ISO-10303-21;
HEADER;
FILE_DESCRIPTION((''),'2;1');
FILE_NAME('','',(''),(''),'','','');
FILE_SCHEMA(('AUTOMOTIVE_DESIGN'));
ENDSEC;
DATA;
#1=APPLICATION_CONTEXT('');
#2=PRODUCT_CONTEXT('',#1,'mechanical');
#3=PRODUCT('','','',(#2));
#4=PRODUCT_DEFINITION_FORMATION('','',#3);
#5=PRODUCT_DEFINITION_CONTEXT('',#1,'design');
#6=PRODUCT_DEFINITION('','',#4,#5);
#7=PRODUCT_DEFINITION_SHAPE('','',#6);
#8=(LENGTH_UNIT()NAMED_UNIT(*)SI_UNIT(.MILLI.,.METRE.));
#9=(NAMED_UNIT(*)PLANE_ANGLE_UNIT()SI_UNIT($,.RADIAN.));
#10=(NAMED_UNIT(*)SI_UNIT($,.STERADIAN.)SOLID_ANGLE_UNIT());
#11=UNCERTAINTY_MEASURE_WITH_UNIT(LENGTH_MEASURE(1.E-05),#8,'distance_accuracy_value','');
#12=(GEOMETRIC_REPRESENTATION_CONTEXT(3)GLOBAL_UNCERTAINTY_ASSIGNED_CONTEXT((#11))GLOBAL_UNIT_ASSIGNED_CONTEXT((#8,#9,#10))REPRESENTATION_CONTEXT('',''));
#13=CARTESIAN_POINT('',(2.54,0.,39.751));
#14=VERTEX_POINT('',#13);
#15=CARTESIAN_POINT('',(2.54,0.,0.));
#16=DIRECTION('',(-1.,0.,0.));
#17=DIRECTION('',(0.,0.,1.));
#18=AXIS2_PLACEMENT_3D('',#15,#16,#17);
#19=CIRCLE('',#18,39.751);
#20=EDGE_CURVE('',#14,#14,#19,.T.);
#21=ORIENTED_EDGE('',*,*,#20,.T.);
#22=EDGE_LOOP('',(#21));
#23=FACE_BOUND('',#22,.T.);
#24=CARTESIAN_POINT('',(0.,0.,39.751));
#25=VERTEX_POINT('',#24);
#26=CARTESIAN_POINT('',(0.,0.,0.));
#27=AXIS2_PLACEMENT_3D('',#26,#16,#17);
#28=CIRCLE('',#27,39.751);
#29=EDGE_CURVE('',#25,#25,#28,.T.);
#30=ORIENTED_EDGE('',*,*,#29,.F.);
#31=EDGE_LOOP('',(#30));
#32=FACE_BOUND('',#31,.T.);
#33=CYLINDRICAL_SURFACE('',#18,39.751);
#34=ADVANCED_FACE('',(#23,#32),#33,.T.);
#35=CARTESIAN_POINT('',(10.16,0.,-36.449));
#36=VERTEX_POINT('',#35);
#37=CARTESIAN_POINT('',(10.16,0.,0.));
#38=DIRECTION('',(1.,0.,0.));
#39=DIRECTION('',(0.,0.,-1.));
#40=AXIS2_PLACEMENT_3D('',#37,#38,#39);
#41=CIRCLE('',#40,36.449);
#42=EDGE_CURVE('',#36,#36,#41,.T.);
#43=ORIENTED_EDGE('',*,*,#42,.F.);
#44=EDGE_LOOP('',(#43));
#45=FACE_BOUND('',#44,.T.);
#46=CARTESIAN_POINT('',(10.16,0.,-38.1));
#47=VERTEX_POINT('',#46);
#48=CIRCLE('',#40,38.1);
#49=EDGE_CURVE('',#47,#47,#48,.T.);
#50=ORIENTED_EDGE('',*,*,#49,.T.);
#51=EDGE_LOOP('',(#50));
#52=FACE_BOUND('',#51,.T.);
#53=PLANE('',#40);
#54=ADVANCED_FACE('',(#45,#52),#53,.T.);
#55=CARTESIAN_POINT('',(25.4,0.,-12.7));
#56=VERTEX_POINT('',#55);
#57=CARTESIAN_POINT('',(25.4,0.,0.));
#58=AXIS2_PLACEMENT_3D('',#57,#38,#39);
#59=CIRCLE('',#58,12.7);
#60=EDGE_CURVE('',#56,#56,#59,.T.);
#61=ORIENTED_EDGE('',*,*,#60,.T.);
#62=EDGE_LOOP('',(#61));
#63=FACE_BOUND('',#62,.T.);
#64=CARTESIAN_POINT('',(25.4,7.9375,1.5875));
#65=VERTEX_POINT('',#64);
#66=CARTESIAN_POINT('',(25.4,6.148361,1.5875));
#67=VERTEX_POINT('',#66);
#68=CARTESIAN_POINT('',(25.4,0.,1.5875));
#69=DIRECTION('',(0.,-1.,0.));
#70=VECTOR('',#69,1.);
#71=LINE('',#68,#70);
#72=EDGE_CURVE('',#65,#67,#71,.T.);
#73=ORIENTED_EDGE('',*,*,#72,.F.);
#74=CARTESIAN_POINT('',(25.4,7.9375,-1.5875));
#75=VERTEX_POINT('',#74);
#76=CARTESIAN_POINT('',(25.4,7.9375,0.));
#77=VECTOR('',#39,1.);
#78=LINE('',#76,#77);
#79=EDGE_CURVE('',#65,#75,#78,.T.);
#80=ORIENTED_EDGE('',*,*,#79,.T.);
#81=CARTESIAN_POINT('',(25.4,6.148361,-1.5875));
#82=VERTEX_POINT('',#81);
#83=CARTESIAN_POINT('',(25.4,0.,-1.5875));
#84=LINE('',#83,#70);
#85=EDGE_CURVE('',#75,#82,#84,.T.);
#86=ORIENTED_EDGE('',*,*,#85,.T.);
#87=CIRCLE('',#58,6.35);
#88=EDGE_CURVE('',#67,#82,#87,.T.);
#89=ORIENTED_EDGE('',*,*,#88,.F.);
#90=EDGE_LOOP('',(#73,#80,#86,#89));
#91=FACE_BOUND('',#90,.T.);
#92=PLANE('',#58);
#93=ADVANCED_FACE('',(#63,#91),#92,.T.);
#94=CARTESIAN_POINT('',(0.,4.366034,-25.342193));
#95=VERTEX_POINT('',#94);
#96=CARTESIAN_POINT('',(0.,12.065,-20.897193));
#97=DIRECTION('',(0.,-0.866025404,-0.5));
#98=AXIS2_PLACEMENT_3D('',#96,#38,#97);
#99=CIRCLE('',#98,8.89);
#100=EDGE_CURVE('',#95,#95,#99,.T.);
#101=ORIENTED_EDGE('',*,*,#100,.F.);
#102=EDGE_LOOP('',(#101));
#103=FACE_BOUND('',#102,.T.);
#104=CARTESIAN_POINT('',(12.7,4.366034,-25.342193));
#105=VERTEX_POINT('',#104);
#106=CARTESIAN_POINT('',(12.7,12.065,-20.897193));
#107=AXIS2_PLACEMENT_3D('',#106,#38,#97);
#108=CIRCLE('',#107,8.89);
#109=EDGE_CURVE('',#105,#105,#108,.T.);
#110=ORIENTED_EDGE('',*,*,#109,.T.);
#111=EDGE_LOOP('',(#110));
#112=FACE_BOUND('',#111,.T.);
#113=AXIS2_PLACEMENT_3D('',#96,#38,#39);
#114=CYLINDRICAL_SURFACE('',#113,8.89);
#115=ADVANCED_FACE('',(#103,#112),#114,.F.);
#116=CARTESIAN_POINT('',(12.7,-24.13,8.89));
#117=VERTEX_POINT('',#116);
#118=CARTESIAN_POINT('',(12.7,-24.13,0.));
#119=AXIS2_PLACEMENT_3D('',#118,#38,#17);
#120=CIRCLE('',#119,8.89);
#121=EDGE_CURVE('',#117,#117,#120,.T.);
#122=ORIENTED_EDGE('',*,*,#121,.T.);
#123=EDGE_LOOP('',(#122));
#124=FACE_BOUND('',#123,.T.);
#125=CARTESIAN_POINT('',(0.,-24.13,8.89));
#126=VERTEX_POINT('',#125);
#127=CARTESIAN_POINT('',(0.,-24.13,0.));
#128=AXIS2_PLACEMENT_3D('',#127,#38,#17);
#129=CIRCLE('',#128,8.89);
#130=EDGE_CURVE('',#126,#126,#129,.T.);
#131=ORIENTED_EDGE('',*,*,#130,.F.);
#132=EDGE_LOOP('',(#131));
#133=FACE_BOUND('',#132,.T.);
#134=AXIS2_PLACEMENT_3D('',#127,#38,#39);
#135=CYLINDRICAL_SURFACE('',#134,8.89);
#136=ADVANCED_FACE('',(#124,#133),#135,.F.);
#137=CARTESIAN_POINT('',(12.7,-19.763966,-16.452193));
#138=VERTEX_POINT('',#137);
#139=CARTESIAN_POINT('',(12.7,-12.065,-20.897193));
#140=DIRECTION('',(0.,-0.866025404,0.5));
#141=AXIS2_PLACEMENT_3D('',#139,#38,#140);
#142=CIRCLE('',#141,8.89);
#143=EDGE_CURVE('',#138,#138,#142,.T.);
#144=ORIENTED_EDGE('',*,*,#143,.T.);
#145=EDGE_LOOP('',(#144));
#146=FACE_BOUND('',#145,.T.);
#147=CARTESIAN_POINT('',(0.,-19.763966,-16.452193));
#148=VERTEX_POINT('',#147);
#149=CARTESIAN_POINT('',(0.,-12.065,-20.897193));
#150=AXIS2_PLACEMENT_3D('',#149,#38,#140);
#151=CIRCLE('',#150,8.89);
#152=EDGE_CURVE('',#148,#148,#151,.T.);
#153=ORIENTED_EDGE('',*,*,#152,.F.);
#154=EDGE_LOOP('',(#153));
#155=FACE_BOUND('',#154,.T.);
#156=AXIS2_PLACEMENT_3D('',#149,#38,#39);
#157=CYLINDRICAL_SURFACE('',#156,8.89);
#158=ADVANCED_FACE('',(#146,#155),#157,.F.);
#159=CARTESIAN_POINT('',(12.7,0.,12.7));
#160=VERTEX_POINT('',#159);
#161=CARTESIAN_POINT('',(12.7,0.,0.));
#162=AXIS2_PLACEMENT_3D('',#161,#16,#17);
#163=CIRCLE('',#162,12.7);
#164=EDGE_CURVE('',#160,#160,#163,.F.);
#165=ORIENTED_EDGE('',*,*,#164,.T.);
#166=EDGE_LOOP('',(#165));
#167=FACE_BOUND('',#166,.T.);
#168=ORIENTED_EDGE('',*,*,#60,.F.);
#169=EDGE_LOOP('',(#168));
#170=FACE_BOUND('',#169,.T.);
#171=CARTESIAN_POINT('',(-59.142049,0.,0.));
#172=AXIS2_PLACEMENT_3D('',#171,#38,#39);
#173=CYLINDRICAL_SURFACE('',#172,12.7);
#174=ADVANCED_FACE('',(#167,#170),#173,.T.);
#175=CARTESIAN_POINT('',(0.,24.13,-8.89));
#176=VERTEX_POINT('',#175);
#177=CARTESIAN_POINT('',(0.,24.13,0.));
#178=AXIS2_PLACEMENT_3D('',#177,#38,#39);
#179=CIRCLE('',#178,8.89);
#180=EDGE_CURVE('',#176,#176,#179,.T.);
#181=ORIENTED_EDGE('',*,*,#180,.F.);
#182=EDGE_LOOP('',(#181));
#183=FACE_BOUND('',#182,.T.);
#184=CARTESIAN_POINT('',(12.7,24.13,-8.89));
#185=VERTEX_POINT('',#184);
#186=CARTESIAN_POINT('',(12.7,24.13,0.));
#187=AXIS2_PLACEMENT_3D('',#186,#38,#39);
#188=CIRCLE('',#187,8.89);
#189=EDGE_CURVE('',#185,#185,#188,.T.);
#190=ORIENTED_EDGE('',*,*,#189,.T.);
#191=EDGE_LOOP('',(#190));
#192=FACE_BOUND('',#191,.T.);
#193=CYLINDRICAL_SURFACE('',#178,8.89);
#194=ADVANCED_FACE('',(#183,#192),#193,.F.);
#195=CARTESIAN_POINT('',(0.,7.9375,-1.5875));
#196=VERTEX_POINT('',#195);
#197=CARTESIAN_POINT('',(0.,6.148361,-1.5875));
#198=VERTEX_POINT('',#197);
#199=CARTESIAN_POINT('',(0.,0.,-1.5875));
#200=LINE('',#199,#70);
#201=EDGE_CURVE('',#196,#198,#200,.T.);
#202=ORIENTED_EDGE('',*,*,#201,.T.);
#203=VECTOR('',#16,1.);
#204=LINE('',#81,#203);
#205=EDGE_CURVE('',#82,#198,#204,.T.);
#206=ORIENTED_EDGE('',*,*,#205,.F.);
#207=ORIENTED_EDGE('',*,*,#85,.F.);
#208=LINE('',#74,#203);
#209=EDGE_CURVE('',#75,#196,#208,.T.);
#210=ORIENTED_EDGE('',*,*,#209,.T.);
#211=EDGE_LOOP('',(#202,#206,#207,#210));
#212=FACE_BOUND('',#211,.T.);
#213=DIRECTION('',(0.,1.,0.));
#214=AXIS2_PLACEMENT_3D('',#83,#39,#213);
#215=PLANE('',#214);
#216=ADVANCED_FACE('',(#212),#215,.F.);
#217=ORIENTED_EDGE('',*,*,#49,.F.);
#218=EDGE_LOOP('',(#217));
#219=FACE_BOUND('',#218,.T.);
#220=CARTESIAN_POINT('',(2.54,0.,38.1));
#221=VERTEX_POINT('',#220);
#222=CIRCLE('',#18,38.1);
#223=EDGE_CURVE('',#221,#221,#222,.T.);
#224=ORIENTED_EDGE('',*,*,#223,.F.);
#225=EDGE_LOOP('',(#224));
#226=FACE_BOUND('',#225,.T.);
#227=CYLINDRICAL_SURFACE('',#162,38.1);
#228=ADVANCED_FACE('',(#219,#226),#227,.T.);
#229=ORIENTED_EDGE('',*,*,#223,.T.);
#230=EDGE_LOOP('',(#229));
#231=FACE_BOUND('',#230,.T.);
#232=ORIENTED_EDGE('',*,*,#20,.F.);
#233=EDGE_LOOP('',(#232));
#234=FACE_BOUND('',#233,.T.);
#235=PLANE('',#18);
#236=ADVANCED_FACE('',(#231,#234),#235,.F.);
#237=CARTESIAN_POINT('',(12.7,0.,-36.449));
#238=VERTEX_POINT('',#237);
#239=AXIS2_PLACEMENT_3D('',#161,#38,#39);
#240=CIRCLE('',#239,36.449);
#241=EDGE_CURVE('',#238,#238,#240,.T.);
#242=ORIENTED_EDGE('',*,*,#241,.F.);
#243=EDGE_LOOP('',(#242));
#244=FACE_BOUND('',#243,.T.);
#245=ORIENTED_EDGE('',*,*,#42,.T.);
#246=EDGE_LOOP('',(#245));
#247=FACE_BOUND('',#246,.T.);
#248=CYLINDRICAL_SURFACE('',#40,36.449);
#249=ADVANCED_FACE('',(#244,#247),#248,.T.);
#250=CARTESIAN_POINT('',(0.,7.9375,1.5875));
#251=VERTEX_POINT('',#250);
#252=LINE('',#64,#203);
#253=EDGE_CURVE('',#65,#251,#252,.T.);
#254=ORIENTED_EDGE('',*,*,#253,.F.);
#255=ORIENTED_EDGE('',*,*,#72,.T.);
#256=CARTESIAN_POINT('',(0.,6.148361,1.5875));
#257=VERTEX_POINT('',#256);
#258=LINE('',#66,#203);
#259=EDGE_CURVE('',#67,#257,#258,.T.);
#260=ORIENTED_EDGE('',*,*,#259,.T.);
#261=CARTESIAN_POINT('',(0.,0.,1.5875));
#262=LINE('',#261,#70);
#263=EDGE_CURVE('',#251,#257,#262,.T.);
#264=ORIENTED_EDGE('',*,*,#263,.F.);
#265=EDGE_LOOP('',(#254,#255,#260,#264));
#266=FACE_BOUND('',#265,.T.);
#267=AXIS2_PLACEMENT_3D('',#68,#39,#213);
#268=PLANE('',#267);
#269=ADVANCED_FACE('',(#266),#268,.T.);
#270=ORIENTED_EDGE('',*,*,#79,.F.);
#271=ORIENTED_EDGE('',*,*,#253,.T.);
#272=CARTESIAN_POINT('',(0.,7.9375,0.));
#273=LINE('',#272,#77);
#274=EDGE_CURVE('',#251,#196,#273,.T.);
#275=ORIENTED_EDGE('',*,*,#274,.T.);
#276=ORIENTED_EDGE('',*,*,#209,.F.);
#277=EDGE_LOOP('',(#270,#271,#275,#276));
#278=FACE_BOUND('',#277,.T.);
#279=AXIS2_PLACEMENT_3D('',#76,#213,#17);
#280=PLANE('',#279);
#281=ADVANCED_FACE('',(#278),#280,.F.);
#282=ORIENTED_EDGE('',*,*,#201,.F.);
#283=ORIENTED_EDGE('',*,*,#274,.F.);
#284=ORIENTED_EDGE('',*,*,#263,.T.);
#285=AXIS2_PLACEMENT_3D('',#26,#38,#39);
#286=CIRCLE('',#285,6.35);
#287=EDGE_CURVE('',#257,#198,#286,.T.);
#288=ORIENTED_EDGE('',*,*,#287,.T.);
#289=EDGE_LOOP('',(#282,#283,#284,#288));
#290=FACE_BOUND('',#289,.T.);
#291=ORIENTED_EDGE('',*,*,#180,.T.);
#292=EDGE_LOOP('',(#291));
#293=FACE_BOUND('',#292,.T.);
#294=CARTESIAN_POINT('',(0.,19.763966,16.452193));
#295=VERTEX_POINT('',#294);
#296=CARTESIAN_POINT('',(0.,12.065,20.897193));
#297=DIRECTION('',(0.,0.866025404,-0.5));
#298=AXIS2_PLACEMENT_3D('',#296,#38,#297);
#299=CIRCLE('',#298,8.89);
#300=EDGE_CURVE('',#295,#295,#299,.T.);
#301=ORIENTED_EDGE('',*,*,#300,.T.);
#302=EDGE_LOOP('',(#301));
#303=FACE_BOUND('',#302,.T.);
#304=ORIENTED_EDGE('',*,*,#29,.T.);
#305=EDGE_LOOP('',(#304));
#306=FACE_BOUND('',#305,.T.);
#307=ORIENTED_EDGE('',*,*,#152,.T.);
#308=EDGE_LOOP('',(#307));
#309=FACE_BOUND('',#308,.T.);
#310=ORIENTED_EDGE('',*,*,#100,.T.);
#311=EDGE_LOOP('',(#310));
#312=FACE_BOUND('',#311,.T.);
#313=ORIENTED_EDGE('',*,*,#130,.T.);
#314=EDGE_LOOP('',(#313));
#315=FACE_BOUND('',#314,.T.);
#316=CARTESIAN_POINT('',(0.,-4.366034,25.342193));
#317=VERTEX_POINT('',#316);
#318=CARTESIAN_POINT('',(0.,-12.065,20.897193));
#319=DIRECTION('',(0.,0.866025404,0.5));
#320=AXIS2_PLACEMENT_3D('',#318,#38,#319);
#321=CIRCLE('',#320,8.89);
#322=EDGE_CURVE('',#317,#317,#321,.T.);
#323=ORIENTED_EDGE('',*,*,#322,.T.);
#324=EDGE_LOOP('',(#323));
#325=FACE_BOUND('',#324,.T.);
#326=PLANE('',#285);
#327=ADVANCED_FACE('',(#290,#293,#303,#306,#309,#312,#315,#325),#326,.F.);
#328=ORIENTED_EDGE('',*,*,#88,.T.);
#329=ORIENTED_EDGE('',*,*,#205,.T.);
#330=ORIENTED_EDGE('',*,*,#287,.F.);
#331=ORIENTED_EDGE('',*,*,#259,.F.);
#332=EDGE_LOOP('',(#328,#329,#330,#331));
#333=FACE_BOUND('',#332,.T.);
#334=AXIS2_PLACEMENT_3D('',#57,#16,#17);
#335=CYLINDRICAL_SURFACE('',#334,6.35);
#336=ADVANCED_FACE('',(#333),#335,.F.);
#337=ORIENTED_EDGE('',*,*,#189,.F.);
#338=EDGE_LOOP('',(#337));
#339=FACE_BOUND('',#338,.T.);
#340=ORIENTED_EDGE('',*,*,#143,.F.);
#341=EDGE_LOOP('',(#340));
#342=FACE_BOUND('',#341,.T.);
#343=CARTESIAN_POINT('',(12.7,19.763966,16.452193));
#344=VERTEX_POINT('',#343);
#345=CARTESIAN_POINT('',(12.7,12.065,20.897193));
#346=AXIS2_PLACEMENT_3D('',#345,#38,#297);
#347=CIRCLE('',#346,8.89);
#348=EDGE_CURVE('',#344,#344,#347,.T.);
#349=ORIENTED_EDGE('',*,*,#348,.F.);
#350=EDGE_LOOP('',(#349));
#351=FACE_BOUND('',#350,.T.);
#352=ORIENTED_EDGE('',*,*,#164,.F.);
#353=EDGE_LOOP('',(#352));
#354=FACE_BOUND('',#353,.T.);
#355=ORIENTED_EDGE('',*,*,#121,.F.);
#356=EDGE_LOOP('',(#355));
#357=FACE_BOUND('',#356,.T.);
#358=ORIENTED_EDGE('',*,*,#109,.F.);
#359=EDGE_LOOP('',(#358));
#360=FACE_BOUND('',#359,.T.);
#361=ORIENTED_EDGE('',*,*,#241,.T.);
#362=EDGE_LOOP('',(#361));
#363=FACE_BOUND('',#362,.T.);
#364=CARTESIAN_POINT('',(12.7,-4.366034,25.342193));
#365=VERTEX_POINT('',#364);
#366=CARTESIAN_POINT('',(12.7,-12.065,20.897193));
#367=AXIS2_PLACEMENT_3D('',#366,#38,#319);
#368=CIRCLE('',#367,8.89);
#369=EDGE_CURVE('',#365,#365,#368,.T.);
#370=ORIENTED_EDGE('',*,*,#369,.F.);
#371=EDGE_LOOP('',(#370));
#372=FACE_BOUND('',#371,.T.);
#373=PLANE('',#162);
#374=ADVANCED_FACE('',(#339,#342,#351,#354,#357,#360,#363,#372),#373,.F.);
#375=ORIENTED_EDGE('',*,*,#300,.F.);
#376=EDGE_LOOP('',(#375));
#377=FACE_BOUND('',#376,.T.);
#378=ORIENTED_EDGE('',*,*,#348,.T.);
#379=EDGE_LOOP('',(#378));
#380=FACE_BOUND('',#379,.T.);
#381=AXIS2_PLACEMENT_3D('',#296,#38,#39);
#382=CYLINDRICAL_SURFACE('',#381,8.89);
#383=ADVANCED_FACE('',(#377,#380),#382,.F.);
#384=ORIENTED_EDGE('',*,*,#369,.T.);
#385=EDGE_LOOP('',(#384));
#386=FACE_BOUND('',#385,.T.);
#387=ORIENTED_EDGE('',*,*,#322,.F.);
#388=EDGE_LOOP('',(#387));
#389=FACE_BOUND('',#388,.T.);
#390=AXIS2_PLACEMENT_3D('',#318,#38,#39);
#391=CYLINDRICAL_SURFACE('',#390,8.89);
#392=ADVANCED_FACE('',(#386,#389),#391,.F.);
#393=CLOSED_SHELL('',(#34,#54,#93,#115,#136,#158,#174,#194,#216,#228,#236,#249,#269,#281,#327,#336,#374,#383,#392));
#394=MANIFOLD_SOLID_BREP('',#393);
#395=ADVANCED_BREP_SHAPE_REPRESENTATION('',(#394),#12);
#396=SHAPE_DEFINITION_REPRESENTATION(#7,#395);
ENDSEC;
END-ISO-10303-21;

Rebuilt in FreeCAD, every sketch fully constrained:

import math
import FreeCAD as App
import Part
import Sketcher
Q = App.Units.Quantity

doc = App.newDocument("Part")
body = doc.addObject("PartDesign::Body", "Body")

# Sketch on YZ plane
sketch1 = body.newObject("Sketcher::SketchObject", "Sketch")
sketch1.AttachmentSupport = (doc.getObject("YZ_Plane"), [""])
sketch1.MapMode = "FlatFace"
sketch1.addGeometry([
    Part.Circle(App.Vector(0, 0, 0), App.Vector(0, 0, 1), 25.4),  # 0
    Part.ArcOfCircle(Part.Circle(App.Vector(0, 0, 0), App.Vector(0, 0, 1), 6.35), math.radians(14.477512), math.radians(270)),  # 1
    Part.LineSegment(App.Vector(6.148361, 1.5875, 0), App.Vector(7.9375, 1.5875, 0)),  # 2
    Part.LineSegment(App.Vector(7.9375, 1.5875, 0), App.Vector(7.9375, -1.5875, 0)),  # 3
    Part.LineSegment(App.Vector(7.9375, -1.5875, 0), App.Vector(6.148361, -1.5875, 0)),  # 4
    Part.ArcOfCircle(Part.Circle(App.Vector(0, 0, 0), App.Vector(0, 0, 1), 6.35), math.radians(-90), math.radians(-14.477512)),  # 5
], False)
sketch1.addConstraint([
    Sketcher.Constraint("Coincident", 1, 1, 2, 1),
    Sketcher.Constraint("Coincident", 2, 2, 3, 1),
    Sketcher.Constraint("Coincident", 3, 2, 4, 1),
    Sketcher.Constraint("Coincident", 4, 2, 5, 2),
    Sketcher.Constraint("Tangent", 5, 1, 1, 2),
    Sketcher.Constraint("Horizontal", 2),
    Sketcher.Constraint("Vertical", 3),
    Sketcher.Constraint("Horizontal", 4),
    Sketcher.Constraint("Coincident", 0, 3, -1, 1),
    Sketcher.Constraint("Coincident", 1, 3, -1, 1),
    Sketcher.Constraint("Equal", 1, 5),
    Sketcher.Constraint("PointOnObject", 5, 1, -2),
    Sketcher.Constraint("Vertical", 1, 1, 4, 2),
    Sketcher.Constraint("Diameter", 0, Q("2 in")),
    Sketcher.Constraint("Radius", 1, Q("0.25 in")),
    Sketcher.Constraint("DistanceY", 3, 2, 3, 1, Q("0.125 in")),
    Sketcher.Constraint("DistanceX", -1, 1, 2, 2, Q("0.3125 in")),
])
pad1 = body.newObject("PartDesign::Pad", "Pad")
pad1.Profile = sketch1
pad1.Length = Q("1 in")

# Sketch on YZ plane
sketch2 = body.newObject("Sketcher::SketchObject", "Sketch001")
sketch2.AttachmentSupport = (doc.getObject("YZ_Plane"), [""])
sketch2.MapMode = "FlatFace"
sketch2.addGeometry([
    Part.Circle(App.Vector(0, 0, 0), App.Vector(0, 0, 1), 38.1),
    Part.Circle(App.Vector(0, 0, 0), App.Vector(0, 0, 1), 10.914062),
], False)
sketch2.addConstraint([
    Sketcher.Constraint("Coincident", 0, 3, -1, 1),
    Sketcher.Constraint("Coincident", 1, 3, -1, 1),
    Sketcher.Constraint("Diameter", 0, Q("3 in")),
    Sketcher.Constraint("Diameter", 1, Q("0.859375 in")),
])
pad2 = body.newObject("PartDesign::Pad", "Pad001")
pad2.Profile = sketch2
pad2.Length = Q("0.5 in")

# Sketch on YZ plane
sketch3 = body.newObject("Sketcher::SketchObject", "Sketch002")
sketch3.AttachmentSupport = (doc.getObject("YZ_Plane"), [""])
sketch3.MapMode = "FlatFace"
sketch3.AttachmentOffset = App.Placement(App.Vector(0, 0, 1 * 25.4), App.Rotation())
sketch3.addGeometry([
    Part.Circle(App.Vector(0, 0, 0), App.Vector(0, 0, 1), 25.4),
    Part.Circle(App.Vector(0, 0, 0), App.Vector(0, 0, 1), 12.7),
], False)
sketch3.addConstraint([
    Sketcher.Constraint("Coincident", 0, 3, -1, 1),
    Sketcher.Constraint("Coincident", 1, 3, -1, 1),
    Sketcher.Constraint("Diameter", 0, Q("2 in")),
    Sketcher.Constraint("Diameter", 1, Q("1 in")),
])
pocket1 = body.newObject("PartDesign::Pocket", "Pocket")
pocket1.Profile = sketch3
pocket1.Length = Q("0.5 in")

# Sketch on YZ plane
sketch4 = body.newObject("Sketcher::SketchObject", "Sketch003")
sketch4.AttachmentSupport = (doc.getObject("YZ_Plane"), [""])
sketch4.MapMode = "FlatFace"
sketch4.AttachmentOffset = App.Placement(App.Vector(0, 0, 0.5 * 25.4), App.Rotation())
sketch4.addGeometry(Part.Circle(App.Vector(24.13, 0, 0), App.Vector(0, 0, 1), 8.89), False)
sketch4.addConstraint([
    Sketcher.Constraint("PointOnObject", 0, 3, -1),
    Sketcher.Constraint("Diameter", 0, Q("0.7 in")),
    Sketcher.Constraint("DistanceX", -1, 1, 0, 3, Q("0.95 in")),
])
pocket2 = body.newObject("PartDesign::Pocket", "Pocket001")
pocket2.Profile = sketch4
pocket2.Type = "ThroughAll"
doc.recompute()

polarpattern = body.newObject("PartDesign::PolarPattern", "PolarPattern")
polarpattern.Originals = [pocket2]
polarpattern.Axis = (doc.getObject("X_Axis"), [""])
polarpattern.Angle = 360
polarpattern.Occurrences = 6
body.Tip = polarpattern

# Sketch on YZ plane
sketch5 = body.newObject("Sketcher::SketchObject", "Sketch004")
sketch5.AttachmentSupport = (doc.getObject("YZ_Plane"), [""])
sketch5.MapMode = "FlatFace"
sketch5.addGeometry([
    Part.Circle(App.Vector(0, 0, 0), App.Vector(0, 0, 1), 39.751),
    Part.Circle(App.Vector(0, 0, 0), App.Vector(0, 0, 1), 38.1),
], False)
sketch5.addConstraint([
    Sketcher.Constraint("Coincident", 0, 3, -1, 1),
    Sketcher.Constraint("Coincident", 1, 3, -1, 1),
    Sketcher.Constraint("Diameter", 1, Q("3 in")),
    Sketcher.Constraint("Diameter", 0, Q("3.13 in")),
])
pad3 = body.newObject("PartDesign::Pad", "Pad002")
pad3.Profile = sketch5
pad3.Length = Q("0.1 in")

# Sketch on YZ plane
sketch6 = body.newObject("Sketcher::SketchObject", "Sketch005")
sketch6.AttachmentSupport = (doc.getObject("YZ_Plane"), [""])
sketch6.MapMode = "FlatFace"
sketch6.AttachmentOffset = App.Placement(App.Vector(0, 0, 0.5 * 25.4), App.Rotation())
sketch6.addGeometry([
    Part.Circle(App.Vector(0, 0, 0), App.Vector(0, 0, 1), 38.1),
    Part.Circle(App.Vector(0, 0, 0), App.Vector(0, 0, 1), 36.449),
], False)
sketch6.addConstraint([
    Sketcher.Constraint("Coincident", 0, 3, -1, 1),
    Sketcher.Constraint("Coincident", 1, 3, -1, 1),
    Sketcher.Constraint("Diameter", 0, Q("3 in")),
    Sketcher.Constraint("Diameter", 1, Q("2.87 in")),
])
pocket3 = body.newObject("PartDesign::Pocket", "Pocket002")
pocket3.Profile = sketch6
pocket3.Length = Q("0.1 in")

doc.recompute()
